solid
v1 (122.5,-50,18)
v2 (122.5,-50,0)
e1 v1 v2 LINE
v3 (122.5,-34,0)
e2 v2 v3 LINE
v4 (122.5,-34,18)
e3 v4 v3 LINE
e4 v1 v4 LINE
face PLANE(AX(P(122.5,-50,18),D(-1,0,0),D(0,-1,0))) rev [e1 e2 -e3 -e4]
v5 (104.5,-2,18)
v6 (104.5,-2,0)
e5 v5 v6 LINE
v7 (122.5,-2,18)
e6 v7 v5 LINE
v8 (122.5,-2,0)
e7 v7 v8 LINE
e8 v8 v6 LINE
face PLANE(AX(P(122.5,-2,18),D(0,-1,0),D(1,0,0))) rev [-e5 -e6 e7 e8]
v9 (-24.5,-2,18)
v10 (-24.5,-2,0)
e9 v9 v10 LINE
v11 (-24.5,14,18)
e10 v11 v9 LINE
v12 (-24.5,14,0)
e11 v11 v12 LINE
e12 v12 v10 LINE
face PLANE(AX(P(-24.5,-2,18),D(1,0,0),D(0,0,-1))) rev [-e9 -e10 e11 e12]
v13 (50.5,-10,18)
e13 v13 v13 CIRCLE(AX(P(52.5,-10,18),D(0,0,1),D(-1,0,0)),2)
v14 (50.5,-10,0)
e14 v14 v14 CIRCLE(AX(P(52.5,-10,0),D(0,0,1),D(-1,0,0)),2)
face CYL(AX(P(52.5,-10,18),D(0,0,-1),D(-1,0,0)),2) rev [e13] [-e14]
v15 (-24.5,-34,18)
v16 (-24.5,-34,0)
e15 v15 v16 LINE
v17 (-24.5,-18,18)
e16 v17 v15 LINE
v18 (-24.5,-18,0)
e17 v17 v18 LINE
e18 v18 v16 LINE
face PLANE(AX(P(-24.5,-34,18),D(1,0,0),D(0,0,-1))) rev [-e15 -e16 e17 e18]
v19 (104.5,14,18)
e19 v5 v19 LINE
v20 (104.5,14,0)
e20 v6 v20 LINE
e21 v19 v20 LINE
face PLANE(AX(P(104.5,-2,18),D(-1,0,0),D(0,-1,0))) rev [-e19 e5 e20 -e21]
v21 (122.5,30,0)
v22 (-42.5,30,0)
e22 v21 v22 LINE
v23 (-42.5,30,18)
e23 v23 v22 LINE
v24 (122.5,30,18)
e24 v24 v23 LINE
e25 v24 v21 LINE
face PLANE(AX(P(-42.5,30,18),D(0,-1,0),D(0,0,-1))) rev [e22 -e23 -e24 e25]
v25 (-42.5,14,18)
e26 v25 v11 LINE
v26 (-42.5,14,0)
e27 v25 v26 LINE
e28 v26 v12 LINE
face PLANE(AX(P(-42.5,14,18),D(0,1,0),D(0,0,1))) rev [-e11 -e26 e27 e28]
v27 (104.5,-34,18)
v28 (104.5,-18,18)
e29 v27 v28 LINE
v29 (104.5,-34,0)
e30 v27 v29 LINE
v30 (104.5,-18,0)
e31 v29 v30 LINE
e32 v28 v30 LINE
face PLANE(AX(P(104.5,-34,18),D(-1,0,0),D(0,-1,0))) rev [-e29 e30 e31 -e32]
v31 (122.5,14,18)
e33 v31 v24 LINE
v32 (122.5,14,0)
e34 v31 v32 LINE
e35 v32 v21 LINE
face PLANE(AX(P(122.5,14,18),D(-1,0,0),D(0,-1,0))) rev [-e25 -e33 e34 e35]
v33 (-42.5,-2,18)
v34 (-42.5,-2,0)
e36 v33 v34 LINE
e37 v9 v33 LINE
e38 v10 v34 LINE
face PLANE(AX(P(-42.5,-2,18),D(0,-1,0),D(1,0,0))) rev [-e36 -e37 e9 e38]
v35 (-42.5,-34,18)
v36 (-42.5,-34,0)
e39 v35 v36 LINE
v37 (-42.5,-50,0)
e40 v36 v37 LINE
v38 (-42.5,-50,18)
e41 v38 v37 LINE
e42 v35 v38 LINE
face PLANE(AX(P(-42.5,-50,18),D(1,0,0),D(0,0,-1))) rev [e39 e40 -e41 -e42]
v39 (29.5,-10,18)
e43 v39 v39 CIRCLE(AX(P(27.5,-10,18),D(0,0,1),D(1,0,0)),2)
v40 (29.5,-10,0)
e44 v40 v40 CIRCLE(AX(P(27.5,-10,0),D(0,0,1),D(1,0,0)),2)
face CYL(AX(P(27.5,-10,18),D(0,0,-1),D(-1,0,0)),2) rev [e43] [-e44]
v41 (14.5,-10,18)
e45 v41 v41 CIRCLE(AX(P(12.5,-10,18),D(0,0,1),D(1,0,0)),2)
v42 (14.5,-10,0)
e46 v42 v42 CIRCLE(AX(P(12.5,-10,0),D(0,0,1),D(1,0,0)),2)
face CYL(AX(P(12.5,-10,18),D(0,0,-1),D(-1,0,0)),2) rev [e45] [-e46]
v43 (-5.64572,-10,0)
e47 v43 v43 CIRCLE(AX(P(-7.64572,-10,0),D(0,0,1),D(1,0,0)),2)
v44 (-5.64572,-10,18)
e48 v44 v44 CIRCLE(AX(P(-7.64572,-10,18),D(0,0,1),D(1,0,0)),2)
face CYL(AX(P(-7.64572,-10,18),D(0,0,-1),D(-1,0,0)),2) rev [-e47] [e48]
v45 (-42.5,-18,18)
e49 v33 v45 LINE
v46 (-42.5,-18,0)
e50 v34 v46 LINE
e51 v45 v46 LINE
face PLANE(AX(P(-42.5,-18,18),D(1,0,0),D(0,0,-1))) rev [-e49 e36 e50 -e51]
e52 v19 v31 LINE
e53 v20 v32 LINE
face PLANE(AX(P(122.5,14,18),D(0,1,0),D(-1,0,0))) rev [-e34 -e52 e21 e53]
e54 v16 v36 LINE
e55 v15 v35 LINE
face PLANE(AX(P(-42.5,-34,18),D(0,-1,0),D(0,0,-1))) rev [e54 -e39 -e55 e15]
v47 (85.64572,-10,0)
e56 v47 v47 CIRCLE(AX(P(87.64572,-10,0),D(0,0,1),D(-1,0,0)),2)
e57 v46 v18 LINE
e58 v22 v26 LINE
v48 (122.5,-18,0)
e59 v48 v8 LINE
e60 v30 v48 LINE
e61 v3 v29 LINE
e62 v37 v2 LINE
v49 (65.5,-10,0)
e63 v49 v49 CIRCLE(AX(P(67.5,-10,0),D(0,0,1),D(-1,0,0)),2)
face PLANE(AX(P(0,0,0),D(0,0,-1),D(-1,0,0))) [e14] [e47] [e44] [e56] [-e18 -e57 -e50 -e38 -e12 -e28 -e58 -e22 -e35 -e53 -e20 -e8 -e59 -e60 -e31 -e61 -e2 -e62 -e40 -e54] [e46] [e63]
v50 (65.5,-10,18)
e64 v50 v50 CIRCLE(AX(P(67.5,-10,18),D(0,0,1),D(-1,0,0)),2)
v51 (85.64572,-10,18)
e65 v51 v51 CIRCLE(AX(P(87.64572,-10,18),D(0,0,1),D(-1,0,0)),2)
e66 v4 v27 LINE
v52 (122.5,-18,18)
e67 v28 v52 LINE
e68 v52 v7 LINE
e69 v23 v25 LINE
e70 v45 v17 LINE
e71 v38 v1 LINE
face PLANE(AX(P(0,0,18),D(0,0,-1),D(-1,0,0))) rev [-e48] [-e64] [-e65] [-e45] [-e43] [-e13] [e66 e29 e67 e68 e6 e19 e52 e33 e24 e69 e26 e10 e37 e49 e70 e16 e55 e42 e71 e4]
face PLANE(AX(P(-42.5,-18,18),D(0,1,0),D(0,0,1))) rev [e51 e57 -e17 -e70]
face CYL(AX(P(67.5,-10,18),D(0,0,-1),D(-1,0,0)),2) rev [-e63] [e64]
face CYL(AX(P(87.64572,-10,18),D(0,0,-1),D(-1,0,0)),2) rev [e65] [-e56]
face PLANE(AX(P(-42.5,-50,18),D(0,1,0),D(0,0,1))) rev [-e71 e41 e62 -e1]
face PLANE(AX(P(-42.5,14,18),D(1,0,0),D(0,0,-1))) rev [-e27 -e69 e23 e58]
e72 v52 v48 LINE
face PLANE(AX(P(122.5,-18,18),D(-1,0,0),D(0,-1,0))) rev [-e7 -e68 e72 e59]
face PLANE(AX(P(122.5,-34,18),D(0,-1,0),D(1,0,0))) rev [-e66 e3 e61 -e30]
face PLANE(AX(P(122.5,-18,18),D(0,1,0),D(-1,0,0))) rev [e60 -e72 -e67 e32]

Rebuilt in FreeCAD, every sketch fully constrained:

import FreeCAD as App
import Part
import Sketcher

V = App.Vector


def add_polygon(sketch, points):
    """Adds a closed chain of lines whose ends are joined by coincident constraints."""
    first, n = sketch.GeometryCount, len(points)
    for a, b in zip(points, points[1:] + points[:1]):
        sketch.addGeometry(Part.LineSegment(App.Vector(*a, 0), App.Vector(*b, 0)), False)
    for i in range(n):
        sketch.addConstraint(Sketcher.Constraint("Coincident", first + i, 2, first + (i + 1) % n, 1))

doc = App.newDocument("Part")
body = doc.addObject("PartDesign::Body", "Body")

# Sketch on XY plane
sketch1 = body.newObject("Sketcher::SketchObject", "Sketch")
sketch1.AttachmentSupport = (doc.getObject("XY_Plane"), [""])
sketch1.MapMode = "FlatFace"
add_polygon(sketch1, [(-42.5, -50), (122.5, -50), (122.5, -34), (104.5, -34), (104.5, -18), (122.5, -18), (122.5, -2), (104.5, -2), (104.5, 14), (122.5, 14), (122.5, 30), (-42.5, 30), (-42.5, 14), (-24.5, 14), (-24.5, -2), (-42.5, -2), (-42.5, -18), (-24.5, -18), (-24.5, -34), (-42.5, -34)])  # lines 0-19
sketch1.addGeometry(Part.Circle(V(-7.6, -10, 0), V(0, 0, 1), 2), False)  # 20
sketch1.addGeometry(Part.Circle(V(12.5, -10, 0), V(0, 0, 1), 2), False)  # 21
sketch1.addGeometry(Part.Circle(V(27.5, -10, 0), V(0, 0, 1), 2), False)  # 22
sketch1.addGeometry(Part.Circle(V(52.5, -10, 0), V(0, 0, 1), 2), False)  # 23
sketch1.addGeometry(Part.Circle(V(67.5, -10, 0), V(0, 0, 1), 2), False)  # 24
sketch1.addGeometry(Part.Circle(V(87.6, -10, 0), V(0, 0, 1), 2), False)  # 25
sketch1.addConstraint([
    Sketcher.Constraint("Horizontal", 0),
    Sketcher.Constraint("Vertical", 1),
    Sketcher.Constraint("Horizontal", 2),
    Sketcher.Constraint("Vertical", 3),
    Sketcher.Constraint("Horizontal", 4),
    Sketcher.Constraint("Vertical", 5),
    Sketcher.Constraint("Horizontal", 6),
    Sketcher.Constraint("Vertical", 7),
    Sketcher.Constraint("Horizontal", 8),
    Sketcher.Constraint("Vertical", 9),
    Sketcher.Constraint("Horizontal", 10),
    Sketcher.Constraint("Vertical", 11),
    Sketcher.Constraint("Horizontal", 12),
    Sketcher.Constraint("Vertical", 13),
    Sketcher.Constraint("Horizontal", 14),
    Sketcher.Constraint("Vertical", 15),
    Sketcher.Constraint("Horizontal", 16),
    Sketcher.Constraint("Vertical", 17),
    Sketcher.Constraint("Horizontal", 18),
    Sketcher.Constraint("Vertical", 19),
    Sketcher.Constraint("Equal", 20, 21),
    Sketcher.Constraint("Equal", 21, 22),
    Sketcher.Constraint("Equal", 22, 23),
    Sketcher.Constraint("Equal", 23, 24),
    Sketcher.Constraint("Equal", 24, 25),
    Sketcher.Constraint("Horizontal", 20, 3, 21, 3),
    Sketcher.Constraint("Horizontal", 21, 3, 22, 3),
    Sketcher.Constraint("Horizontal", 22, 3, 23, 3),
    Sketcher.Constraint("Horizontal", 23, 3, 24, 3),
    Sketcher.Constraint("Horizontal", 24, 3, 25, 3),
    Sketcher.Constraint("Horizontal", 8, 2, 11, 2),
    Sketcher.Constraint("Horizontal", 6, 2, 13, 2),
    Sketcher.Constraint("Horizontal", 4, 2, 15, 2),
    Sketcher.Constraint("Horizontal", 2, 2, 17, 2),
    Sketcher.Constraint("Vertical", 1, 2, 4, 2),
    Sketcher.Constraint("Vertical", 3, 2, 6, 2),
    Sketcher.Constraint("Vertical", 5, 2, 8, 2),
    Sketcher.Constraint("Vertical", 11, 2, 14, 2),
    Sketcher.Constraint("Vertical", 13, 2, 16, 2),
    Sketcher.Constraint("Vertical", 15, 2, 18, 2),
    Sketcher.Constraint("Equal", 8, 12),
    Sketcher.Constraint("Equal", 1, 3),
    Sketcher.Constraint("Equal", 3, 5),
    Sketcher.Constraint("Equal", 5, 7),
    Sketcher.Constraint("Equal", 7, 9),
    Sketcher.Constraint("Diameter", 20, 4.0),
    Sketcher.Constraint("DistanceX", 0, 1, 0, 2, 165.0),
    Sketcher.Constraint("DistanceX", 2, 2, 2, 1, 18.0),
    Sketcher.Constraint("DistanceY", 1, 1, 1, 2, 16.0),
    Sketcher.Constraint("DistanceY", 20, 3, -1, 1, 10.0),
    Sketcher.Constraint("DistanceY", 0, 2, -1, 1, 50.0),
    Sketcher.Constraint("DistanceX", 21, 3, 22, 3, 15.0),
    Sketcher.Constraint("DistanceX", 22, 3, 23, 3, 25.0),
    Sketcher.Constraint("DistanceX", 23, 3, 24, 3, 15.0),
    Sketcher.Constraint("DistanceX", 24, 3, 0, 2, 55.0),
    Sketcher.Constraint("DistanceX", -1, 1, 21, 3, 12.5),
    Sketcher.Constraint("DistanceX", 20, 3, -1, 1, 7.64572),
    Sketcher.Constraint("DistanceX", -1, 1, 25, 3, 87.64572),
])
pad1 = body.newObject("PartDesign::Pad", "Pad")
pad1.Profile = sketch1
pad1.Length = 18

doc.recompute()
